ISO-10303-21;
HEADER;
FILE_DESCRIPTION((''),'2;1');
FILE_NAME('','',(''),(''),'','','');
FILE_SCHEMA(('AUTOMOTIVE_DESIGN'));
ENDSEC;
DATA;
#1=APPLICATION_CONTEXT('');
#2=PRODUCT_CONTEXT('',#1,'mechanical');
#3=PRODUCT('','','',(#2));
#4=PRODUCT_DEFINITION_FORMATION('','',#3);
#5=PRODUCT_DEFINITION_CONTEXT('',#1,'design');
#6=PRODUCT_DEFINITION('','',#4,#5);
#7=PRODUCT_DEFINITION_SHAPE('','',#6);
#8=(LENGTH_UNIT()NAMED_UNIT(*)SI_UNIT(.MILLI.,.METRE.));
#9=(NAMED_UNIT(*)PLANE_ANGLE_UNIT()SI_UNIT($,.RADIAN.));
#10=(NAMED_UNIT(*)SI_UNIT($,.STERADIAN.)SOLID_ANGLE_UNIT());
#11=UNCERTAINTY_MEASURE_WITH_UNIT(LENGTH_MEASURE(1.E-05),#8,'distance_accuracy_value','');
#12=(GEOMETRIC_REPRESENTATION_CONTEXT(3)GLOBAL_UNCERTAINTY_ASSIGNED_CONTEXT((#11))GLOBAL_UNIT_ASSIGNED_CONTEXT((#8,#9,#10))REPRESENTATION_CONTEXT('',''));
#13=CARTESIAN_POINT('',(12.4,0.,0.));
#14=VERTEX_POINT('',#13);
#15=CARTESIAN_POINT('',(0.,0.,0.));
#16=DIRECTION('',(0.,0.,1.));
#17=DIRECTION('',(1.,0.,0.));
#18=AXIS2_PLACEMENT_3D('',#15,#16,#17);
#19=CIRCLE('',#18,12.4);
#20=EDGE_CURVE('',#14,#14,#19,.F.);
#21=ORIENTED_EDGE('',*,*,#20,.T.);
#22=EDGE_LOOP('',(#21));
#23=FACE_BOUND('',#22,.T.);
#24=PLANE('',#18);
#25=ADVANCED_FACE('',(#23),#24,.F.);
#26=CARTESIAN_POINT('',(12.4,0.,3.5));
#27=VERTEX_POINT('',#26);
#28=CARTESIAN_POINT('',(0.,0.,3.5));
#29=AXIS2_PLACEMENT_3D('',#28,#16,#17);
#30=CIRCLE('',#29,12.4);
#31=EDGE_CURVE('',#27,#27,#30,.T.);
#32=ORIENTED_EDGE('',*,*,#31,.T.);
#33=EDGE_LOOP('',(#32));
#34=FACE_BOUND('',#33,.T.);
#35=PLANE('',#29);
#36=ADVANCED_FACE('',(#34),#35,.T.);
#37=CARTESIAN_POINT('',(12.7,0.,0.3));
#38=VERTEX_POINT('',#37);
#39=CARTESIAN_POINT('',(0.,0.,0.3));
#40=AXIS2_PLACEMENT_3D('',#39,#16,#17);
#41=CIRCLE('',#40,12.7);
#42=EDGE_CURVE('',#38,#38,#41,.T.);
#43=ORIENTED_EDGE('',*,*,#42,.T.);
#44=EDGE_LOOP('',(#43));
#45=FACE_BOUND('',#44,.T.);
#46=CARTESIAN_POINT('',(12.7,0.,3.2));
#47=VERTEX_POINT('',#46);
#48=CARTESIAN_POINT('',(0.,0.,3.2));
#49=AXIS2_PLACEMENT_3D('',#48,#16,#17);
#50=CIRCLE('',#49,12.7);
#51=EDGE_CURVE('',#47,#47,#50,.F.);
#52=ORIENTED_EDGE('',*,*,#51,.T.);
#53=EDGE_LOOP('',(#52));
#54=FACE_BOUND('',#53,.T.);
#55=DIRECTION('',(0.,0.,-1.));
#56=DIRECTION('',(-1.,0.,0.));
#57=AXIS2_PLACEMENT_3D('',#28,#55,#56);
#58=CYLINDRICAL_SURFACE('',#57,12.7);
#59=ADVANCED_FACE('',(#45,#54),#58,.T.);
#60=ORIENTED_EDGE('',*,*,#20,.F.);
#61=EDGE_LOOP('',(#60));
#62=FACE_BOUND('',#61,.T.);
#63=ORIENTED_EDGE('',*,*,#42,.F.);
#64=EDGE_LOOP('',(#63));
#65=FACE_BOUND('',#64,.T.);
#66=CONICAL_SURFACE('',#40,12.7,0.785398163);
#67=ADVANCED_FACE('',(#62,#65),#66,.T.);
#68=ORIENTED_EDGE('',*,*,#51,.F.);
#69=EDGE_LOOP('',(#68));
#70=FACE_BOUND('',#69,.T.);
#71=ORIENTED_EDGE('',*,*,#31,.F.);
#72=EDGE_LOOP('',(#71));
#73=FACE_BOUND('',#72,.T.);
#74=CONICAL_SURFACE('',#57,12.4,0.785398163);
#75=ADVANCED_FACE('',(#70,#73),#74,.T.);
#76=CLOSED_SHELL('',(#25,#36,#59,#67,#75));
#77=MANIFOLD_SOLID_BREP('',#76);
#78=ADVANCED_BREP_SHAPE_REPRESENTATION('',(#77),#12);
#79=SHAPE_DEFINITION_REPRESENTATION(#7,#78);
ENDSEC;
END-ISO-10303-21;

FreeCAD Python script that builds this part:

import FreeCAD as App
import Part
import Sketcher


def edges_at(feature, points):
    """Names of the edges that pass closest to the given points."""
    edges = feature.Shape.Edges
    near = lambda p: min(range(len(edges)), key=lambda i: edges[i].distToShape(Part.Vertex(*p))[0])
    return sorted({f"Edge{near(p) + 1}" for p in points})

doc = App.newDocument("Part")
body = doc.addObject("PartDesign::Body", "Body")

# Sketch on XY plane
sketch1 = body.newObject("Sketcher::SketchObject", "Sketch")
sketch1.AttachmentSupport = (doc.getObject("XY_Plane"), [""])
sketch1.MapMode = "FlatFace"
sketch1.addGeometry(Part.Circle(App.Vector(0, 0, 0), App.Vector(0, 0, 1), 13), False)
sketch1.addConstraint(Sketcher.Constraint("Coincident", 0, 3, -1, 1))
sketch1.addConstraint(Sketcher.Constraint("Diameter", 0, 25.4))
pad1 = body.newObject("PartDesign::Pad", "Pad")
pad1.Profile = sketch1
pad1.Length = 3.5
doc.recompute()

chamfer = body.newObject("PartDesign::Chamfer", "Chamfer")
chamfer.Base = (pad1, edges_at(pad1, [(-12.7, 0, 0), (-12.7, 0, 3.5)]))
chamfer.Size = 0.3

doc.recompute()
